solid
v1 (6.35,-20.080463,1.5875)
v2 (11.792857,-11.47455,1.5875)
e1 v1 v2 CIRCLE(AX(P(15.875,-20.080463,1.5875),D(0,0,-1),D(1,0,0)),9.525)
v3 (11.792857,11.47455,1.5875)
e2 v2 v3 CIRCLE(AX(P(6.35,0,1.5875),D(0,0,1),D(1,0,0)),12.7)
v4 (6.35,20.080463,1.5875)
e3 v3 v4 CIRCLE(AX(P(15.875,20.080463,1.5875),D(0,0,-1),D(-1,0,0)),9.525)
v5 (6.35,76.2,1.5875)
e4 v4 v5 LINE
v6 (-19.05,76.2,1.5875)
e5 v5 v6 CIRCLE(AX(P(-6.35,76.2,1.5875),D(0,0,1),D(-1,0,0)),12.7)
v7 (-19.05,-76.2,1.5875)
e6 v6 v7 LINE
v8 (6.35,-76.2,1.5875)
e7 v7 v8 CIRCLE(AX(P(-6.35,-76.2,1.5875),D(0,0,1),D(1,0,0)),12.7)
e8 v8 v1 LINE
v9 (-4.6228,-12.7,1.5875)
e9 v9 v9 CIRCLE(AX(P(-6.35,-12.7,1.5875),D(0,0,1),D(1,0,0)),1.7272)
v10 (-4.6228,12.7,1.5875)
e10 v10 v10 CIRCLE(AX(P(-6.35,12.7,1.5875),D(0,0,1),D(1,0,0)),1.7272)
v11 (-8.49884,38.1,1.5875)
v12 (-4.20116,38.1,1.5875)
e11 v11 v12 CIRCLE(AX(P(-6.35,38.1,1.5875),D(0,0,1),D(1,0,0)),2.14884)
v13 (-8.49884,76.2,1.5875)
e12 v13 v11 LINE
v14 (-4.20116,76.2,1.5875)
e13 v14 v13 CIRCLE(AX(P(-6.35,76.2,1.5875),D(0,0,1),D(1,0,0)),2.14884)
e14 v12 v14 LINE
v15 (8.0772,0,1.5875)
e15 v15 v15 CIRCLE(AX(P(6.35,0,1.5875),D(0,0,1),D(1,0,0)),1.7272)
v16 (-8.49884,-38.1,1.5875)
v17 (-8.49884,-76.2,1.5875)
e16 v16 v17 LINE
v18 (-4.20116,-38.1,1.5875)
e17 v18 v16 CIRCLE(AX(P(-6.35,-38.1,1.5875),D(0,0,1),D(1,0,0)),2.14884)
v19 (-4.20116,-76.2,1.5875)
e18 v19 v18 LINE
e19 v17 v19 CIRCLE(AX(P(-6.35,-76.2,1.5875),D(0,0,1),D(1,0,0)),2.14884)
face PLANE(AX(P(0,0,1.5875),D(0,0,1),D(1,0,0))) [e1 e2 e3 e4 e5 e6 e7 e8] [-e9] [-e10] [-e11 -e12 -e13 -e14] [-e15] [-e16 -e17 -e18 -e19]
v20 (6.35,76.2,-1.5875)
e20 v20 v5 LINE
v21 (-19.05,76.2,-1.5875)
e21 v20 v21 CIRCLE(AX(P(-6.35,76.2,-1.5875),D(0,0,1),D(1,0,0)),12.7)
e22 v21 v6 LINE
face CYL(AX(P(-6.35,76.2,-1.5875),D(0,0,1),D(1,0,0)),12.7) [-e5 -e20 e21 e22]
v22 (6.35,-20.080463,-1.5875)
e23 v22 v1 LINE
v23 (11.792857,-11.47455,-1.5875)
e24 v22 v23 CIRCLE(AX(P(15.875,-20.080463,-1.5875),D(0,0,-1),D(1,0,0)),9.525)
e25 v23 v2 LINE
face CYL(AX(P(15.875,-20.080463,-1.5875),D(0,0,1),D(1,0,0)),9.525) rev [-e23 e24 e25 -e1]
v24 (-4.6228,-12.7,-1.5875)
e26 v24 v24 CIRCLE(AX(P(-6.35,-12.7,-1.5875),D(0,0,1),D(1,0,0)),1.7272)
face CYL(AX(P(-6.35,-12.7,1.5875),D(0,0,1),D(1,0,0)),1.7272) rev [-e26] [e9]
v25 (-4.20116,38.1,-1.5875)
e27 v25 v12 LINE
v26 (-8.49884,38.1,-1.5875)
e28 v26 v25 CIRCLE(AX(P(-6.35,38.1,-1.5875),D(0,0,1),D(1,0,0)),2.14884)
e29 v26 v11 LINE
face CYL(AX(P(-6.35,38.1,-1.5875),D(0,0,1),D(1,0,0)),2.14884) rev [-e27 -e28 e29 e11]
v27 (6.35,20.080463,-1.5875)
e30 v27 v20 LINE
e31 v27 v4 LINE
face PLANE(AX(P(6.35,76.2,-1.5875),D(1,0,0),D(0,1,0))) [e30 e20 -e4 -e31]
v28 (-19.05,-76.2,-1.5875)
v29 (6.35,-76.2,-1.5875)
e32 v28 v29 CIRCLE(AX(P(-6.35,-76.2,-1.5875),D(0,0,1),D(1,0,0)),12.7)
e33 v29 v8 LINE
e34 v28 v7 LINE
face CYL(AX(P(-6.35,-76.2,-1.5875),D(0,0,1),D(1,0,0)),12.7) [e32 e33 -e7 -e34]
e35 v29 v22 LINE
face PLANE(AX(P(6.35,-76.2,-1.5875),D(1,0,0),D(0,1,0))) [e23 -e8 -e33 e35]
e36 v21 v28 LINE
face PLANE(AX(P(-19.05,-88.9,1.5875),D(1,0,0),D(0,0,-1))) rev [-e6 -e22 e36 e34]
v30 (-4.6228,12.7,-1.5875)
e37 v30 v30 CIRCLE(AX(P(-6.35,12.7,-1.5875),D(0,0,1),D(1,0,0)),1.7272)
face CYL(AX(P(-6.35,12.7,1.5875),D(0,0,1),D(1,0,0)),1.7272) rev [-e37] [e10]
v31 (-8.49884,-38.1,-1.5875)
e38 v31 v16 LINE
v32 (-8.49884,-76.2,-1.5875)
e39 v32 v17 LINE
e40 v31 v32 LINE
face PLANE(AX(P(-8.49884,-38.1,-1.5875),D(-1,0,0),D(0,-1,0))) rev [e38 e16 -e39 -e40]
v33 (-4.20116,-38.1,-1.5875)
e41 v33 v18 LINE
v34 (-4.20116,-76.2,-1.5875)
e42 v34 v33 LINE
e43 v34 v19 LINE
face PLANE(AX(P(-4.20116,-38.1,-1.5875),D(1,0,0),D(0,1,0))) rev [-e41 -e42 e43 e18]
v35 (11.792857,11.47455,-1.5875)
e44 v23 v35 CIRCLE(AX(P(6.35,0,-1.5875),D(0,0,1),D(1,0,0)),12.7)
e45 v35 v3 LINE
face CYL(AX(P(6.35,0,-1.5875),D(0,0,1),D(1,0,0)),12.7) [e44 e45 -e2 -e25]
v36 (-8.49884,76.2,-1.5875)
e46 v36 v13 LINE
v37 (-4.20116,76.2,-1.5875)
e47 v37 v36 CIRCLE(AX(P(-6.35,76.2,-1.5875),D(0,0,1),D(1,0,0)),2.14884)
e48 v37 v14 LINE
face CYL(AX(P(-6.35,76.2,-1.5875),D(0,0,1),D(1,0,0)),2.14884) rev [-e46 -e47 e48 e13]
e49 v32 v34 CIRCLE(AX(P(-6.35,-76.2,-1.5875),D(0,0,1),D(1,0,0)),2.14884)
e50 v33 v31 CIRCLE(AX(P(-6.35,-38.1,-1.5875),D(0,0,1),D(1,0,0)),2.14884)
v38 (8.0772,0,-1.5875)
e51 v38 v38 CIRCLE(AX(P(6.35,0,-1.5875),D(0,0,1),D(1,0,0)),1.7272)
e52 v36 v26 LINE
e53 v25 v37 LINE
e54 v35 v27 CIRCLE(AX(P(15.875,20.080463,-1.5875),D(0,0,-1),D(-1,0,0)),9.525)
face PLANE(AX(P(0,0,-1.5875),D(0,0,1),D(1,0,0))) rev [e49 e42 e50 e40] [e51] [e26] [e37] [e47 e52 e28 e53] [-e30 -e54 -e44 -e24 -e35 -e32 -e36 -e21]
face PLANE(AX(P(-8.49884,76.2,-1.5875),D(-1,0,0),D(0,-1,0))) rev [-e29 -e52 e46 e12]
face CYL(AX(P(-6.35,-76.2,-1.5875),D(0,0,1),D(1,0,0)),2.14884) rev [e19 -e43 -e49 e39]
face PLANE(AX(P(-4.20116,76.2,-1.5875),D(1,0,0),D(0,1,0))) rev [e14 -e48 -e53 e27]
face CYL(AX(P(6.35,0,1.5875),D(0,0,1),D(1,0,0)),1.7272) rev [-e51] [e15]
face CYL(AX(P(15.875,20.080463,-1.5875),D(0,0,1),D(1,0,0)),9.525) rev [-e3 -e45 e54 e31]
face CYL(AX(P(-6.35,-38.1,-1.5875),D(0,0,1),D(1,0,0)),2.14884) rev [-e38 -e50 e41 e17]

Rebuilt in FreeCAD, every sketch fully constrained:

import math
import FreeCAD as App
import Part
import Sketcher

V = App.Vector
Q = App.Units.Quantity


def add_polygon(sketch, points):
    """Adds a closed chain of lines whose ends are joined by coincident constraints."""
    first, n = sketch.GeometryCount, len(points)
    for a, b in zip(points, points[1:] + points[:1]):
        sketch.addGeometry(Part.LineSegment(App.Vector(*a, 0), App.Vector(*b, 0)), False)
    for i in range(n):
        sketch.addConstraint(Sketcher.Constraint("Coincident", first + i, 2, first + (i + 1) % n, 1))

doc = App.newDocument("Part")
body = doc.addObject("PartDesign::Body", "Body")

# Sketch on XY plane
sketch1 = body.newObject("Sketcher::SketchObject", "Sketch")
sketch1.AttachmentSupport = (doc.getObject("XY_Plane"), [""])
sketch1.MapMode = "FlatFace"
add_polygon(sketch1, [(-19.05, 88.9), (-19.05, -88.9), (19.05, -88.9), (19.05, 88.9)])  # lines 0-3
sketch1.addConstraint([
    Sketcher.Constraint("Vertical", 0),
    Sketcher.Constraint("Horizontal", 1),
    Sketcher.Constraint("Vertical", 2),
    Sketcher.Constraint("Horizontal", 3),
    Sketcher.Constraint("Symmetric", 0, 2, 2, 2, -1, 1),
    Sketcher.Constraint("DistanceY", 0, 2, 0, 1, Q("7 in")),
    Sketcher.Constraint("DistanceX", 1, 1, 1, 2, Q("1.5 in")),
])
pad1 = body.newObject("PartDesign::Pad", "Pad")
pad1.Profile = sketch1
pad1.Length = Q("0.125 in")
pad1.Midplane = True

# Sketch on XY plane
sketch2 = body.newObject("Sketcher::SketchObject", "Sketch001")
sketch2.AttachmentSupport = (doc.getObject("XY_Plane"), [""])
sketch2.MapMode = "FlatFace"
sketch2.AttachmentOffset = App.Placement(V(0, 0, 0.0625 * 25.4), App.Rotation())
sketch2.addGeometry([
    Part.Circle(V(-6.35, 12.7, 0), V(0, 0, 1), 1.7272),
    Part.Circle(V(-6.35, -12.7, 0), V(0, 0, 1), 1.7272),
    Part.Circle(V(6.35, 0, 0), V(0, 0, 1), 1.7272),
], False)
sketch2.addConstraint([
    Sketcher.Constraint("Equal", 0, 1),
    Sketcher.Constraint("Equal", 1, 2),
    Sketcher.Constraint("Symmetric", 0, 3, 1, 3, -1),
    Sketcher.Constraint("PointOnObject", 2, 3, -1),
    Sketcher.Constraint("Diameter", 0, Q("0.136 in")),
    Sketcher.Constraint("DistanceY", 1, 3, 0, 3, Q("1 in")),
    Sketcher.Constraint("DistanceX", 0, 3, 2, 3, Q("0.5 in")),
    Sketcher.Constraint("DistanceX", 0, 3, -1, 1, Q("0.25 in")),
])
doc.recompute()
hole = body.newObject("PartDesign::Hole", "Hole")
hole.Profile = sketch2
hole.ThreadType = "None"
hole.Diameter = Q("0.136 in")
hole.DepthType = "ThroughAll"

# Sketch on XY plane
sketch3 = body.newObject("Sketcher::SketchObject", "Sketch002")
sketch3.AttachmentSupport = (doc.getObject("XY_Plane"), [""])
sketch3.MapMode = "FlatFace"
sketch3.AttachmentOffset = App.Placement(V(0, 0, 0.0625 * 25.4), App.Rotation())
sketch3.addGeometry([
    Part.LineSegment(V(-4.20116, 38.1, 0), V(-4.20116, 76.2, 0)),  # 0
    Part.ArcOfCircle(Part.Circle(V(-6.35, 76.2, 0), V(0, 0, 1), 2.14884), math.radians(0), math.radians(180)),  # 1
    Part.LineSegment(V(-8.49884, 76.2, 0), V(-8.49884, 38.1, 0)),  # 2
    Part.ArcOfCircle(Part.Circle(V(-6.35, 38.1, 0), V(0, 0, 1), 2.14884), math.radians(180), math.radians(360)),  # 3
    Part.LineSegment(V(-4.20116, -76.2, 0), V(-4.20116, -38.1, 0)),  # 4
    Part.ArcOfCircle(Part.Circle(V(-6.35, -38.1, 0), V(0, 0, 1), 2.14884), math.radians(0), math.radians(180)),  # 5
    Part.LineSegment(V(-8.49884, -38.1, 0), V(-8.49884, -76.2, 0)),  # 6
    Part.ArcOfCircle(Part.Circle(V(-6.35, -76.2, 0), V(0, 0, 1), 2.14884), math.radians(180), math.radians(360)),  # 7
], False)
sketch3.addConstraint([
    Sketcher.Constraint("Tangent", 0, 2, 1, 1),
    Sketcher.Constraint("Tangent", 1, 2, 2, 1),
    Sketcher.Constraint("Tangent", 2, 2, 3, 1),
    Sketcher.Constraint("Tangent", 3, 2, 0, 1),
    Sketcher.Constraint("Tangent", 4, 2, 5, 1),
    Sketcher.Constraint("Tangent", 5, 2, 6, 1),
    Sketcher.Constraint("Tangent", 6, 2, 7, 1),
    Sketcher.Constraint("Tangent", 7, 2, 4, 1),
    Sketcher.Constraint("Vertical", 0),
    Sketcher.Constraint("Vertical", 2),
    Sketcher.Constraint("Vertical", 4),
    Sketcher.Constraint("Vertical", 6),
    Sketcher.Constraint("Equal", 3, 5),
    Sketcher.Constraint("Symmetric", 3, 3, 5, 3, -1),
    Sketcher.Constraint("Equal", 2, 4),
    Sketcher.Constraint("DistanceY", 0, 1, 0, 2, Q("1.5 in")),
    Sketcher.Constraint("DistanceY", -1, 1, 1, 3, Q("3 in")),
    Sketcher.Constraint("Radius", 1, Q("0.0846 in")),
    Sketcher.Constraint("DistanceX", 1, 3, -1, 1, Q("0.25 in")),
])
pocket1 = body.newObject("PartDesign::Pocket", "Pocket")
pocket1.Profile = sketch3
pocket1.Type = "ThroughAll"

# Sketch on XY plane
sketch4 = body.newObject("Sketcher::SketchObject", "Sketch003")
sketch4.AttachmentSupport = (doc.getObject("XY_Plane"), [""])
sketch4.MapMode = "FlatFace"
sketch4.AttachmentOffset = App.Placement(V(0, 0, 0.0625 * 25.4), App.Rotation())
add_polygon(sketch4, [(-38.236, 108.086), (-38.236, -108.086), (38.236, -108.086), (38.236, 108.086)])  # lines 0-3
sketch4.addGeometry(Part.ArcOfCircle(Part.Circle(V(-6.35, 76.2, 0), V(0, 0, 1), 12.7), math.radians(0), math.radians(180)), False)  # 4
sketch4.addGeometry(Part.LineSegment(V(6.35, 76.2, 0), V(6.35, 20.080463, 0)), False)  # 5
sketch4.addGeometry(Part.ArcOfCircle(Part.Circle(V(15.875, 20.080463, 0), V(0, 0, 1), 9.525), math.radians(-180), math.radians(-115.376934)), False)  # 6
sketch4.addGeometry(Part.ArcOfCircle(Part.Circle(V(6.35, 0, 0), V(0, 0, 1), 12.7), math.radians(-64.623066), math.radians(64.623066)), False)  # 7
sketch4.addGeometry(Part.ArcOfCircle(Part.Circle(V(15.875, -20.080463, 0), V(0, 0, 1), 9.525), math.radians(115.376934), math.radians(180)), False)  # 8
sketch4.addGeometry(Part.LineSegment(V(6.35, -20.080463, 0), V(6.35, -76.2, 0)), False)  # 9
sketch4.addGeometry(Part.ArcOfCircle(Part.Circle(V(-6.35, -76.2, 0), V(0, 0, 1), 12.7), math.radians(180), math.radians(360)), False)  # 10
sketch4.addGeometry(Part.LineSegment(V(-19.05, -76.2, 0), V(-19.05, 76.2, 0)), False)  # 11
sketch4.addConstraint([
    Sketcher.Constraint("Tangent", 4, 1, 5, 1),
    Sketcher.Constraint("Tangent", 5, 2, 6, 1),
    Sketcher.Constraint("Tangent", 6, 2, 7, 2),
    Sketcher.Constraint("Tangent", 7, 1, 8, 1),
    Sketcher.Constraint("Tangent", 8, 2, 9, 1),
    Sketcher.Constraint("Tangent", 9, 2, 10, 2),
    Sketcher.Constraint("Tangent", 10, 1, 11, 1),
    Sketcher.Constraint("Tangent", 11, 2, 4, 2),
    Sketcher.Constraint("Vertical", 0),
    Sketcher.Constraint("Horizontal", 1),
    Sketcher.Constraint("Vertical", 2),
    Sketcher.Constraint("Horizontal", 3),
    Sketcher.Constraint("Vertical", 5),
    Sketcher.Constraint("Vertical", 9),
    Sketcher.Constraint("Vertical", 11),
    Sketcher.Constraint("Equal", 4, 7),
    Sketcher.Constraint("Equal", 6, 8),
    Sketcher.Constraint("Equal", 7, 10),
    Sketcher.Constraint("Symmetric", 0, 2, 2, 2, -1, 1),
    Sketcher.Constraint("PointOnObject", 7, 3, -1),
    Sketcher.Constraint("Vertical", 7, 3, 4, 1),
    Sketcher.Constraint("Equal", 5, 9),
    Sketcher.Constraint("Radius", 4, Q("0.5 in")),
    Sketcher.Constraint("DistanceY", 11, 1, 11, 2, Q("6 in")),
    Sketcher.Constraint("Radius", 6, Q("0.375 in")),
    Sketcher.Constraint("DistanceX", 4, 3, -1, 1, Q("0.25 in")),
    Sketcher.Constraint("DistanceX", 1, 1, 1, 2, Q("76.472 mm")),
    Sketcher.Constraint("DistanceY", 0, 2, 0, 1, Q("216.172 mm")),
])
pocket2 = body.newObject("PartDesign::Pocket", "Pocket001")
pocket2.Profile = sketch4
pocket2.Type = "ThroughAll"

doc.recompute()
